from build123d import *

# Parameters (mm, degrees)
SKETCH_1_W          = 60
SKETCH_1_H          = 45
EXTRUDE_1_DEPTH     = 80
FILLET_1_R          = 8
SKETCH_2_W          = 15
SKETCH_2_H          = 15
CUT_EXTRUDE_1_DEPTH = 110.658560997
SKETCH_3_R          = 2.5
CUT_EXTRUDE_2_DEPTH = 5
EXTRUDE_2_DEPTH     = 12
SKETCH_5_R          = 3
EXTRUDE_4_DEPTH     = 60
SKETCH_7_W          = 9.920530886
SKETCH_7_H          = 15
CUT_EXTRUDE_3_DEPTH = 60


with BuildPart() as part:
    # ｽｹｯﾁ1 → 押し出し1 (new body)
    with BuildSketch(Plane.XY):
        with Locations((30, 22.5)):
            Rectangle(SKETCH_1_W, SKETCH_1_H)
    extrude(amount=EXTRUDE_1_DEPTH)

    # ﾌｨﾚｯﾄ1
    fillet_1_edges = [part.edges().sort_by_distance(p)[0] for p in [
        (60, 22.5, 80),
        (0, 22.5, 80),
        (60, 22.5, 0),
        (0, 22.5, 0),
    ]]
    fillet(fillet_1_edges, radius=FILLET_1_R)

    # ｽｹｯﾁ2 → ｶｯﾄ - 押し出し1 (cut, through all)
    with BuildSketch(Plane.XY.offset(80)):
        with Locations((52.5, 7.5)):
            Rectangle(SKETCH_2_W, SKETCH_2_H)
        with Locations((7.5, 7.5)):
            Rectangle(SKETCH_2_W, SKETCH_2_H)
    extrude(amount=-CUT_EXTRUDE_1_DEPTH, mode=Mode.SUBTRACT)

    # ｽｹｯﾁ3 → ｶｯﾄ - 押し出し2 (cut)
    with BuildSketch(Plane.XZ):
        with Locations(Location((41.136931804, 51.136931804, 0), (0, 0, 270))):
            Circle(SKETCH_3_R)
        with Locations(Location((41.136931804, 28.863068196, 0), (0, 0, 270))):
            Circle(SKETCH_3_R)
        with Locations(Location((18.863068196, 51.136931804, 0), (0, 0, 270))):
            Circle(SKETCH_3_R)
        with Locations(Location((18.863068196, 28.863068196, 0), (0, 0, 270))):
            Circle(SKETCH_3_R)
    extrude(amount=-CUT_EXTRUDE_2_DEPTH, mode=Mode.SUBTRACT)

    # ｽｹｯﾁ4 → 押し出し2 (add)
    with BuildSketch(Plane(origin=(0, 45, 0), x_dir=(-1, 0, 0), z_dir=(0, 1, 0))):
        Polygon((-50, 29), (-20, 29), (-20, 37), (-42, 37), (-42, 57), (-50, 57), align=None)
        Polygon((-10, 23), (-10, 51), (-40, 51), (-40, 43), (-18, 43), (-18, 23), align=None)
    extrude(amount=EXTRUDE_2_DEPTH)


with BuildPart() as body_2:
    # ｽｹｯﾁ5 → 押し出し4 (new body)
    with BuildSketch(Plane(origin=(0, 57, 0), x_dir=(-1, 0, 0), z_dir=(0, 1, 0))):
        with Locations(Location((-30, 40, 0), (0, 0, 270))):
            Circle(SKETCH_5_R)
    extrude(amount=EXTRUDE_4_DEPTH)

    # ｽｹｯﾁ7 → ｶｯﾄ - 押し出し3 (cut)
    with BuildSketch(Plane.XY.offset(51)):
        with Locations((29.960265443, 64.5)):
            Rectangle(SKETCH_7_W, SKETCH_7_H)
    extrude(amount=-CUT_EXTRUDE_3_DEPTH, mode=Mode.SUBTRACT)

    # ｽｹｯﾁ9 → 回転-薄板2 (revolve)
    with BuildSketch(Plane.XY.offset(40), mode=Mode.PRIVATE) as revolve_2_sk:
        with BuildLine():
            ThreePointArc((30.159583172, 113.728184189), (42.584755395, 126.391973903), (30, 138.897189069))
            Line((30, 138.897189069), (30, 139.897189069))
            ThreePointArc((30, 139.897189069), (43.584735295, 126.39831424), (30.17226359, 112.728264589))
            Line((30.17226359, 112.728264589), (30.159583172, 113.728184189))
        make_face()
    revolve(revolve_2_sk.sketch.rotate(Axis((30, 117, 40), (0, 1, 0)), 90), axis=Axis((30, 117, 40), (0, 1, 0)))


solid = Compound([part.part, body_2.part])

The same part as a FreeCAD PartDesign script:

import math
import FreeCAD as App
import Part
import Sketcher
Q = App.Units.Quantity


def edges_at(feature, points):
    """Names of the edges that pass closest to the given points."""
    edges = feature.Shape.Edges
    near = lambda p: min(range(len(edges)), key=lambda i: edges[i].distToShape(Part.Vertex(*p))[0])
    return sorted({f"Edge{near(p) + 1}" for p in points})

doc = App.newDocument("Part")
body = doc.addObject("PartDesign::Body", "Body")

# Sketch on XY plane
sketch1 = body.newObject("Sketcher::SketchObject", "Sketch")
sketch1.AttachmentSupport = (doc.getObject("XY_Plane"), [""])
sketch1.MapMode = "FlatFace"
sketch1.addGeometry([
    Part.LineSegment(App.Vector(0, 45, 0), App.Vector(0, 0, 0)),
    Part.LineSegment(App.Vector(0, 0, 0), App.Vector(60, 0, 0)),
    Part.LineSegment(App.Vector(60, 0, 0), App.Vector(60, 45, 0)),
    Part.LineSegment(App.Vector(60, 45, 0), App.Vector(0, 45, 0)),
], False)
sketch1.addConstraint([
    Sketcher.Constraint("Coincident", 0, 2, 1, 1),
    Sketcher.Constraint("Coincident", 1, 2, 2, 1),
    Sketcher.Constraint("Coincident", 2, 2, 3, 1),
    Sketcher.Constraint("Coincident", 3, 2, 0, 1),
    Sketcher.Constraint("Vertical", 0),
    Sketcher.Constraint("Horizontal", 1),
    Sketcher.Constraint("Vertical", 2),
    Sketcher.Constraint("Horizontal", 3),
    Sketcher.Constraint("Coincident", 0, 2, -1, 1),
    Sketcher.Constraint("DistanceX", 1, 1, 1, 2, Q("60 mm")),
    Sketcher.Constraint("DistanceY", 0, 2, 0, 1, Q("45 mm")),
])
pad1 = body.newObject("PartDesign::Pad", "Pad")
pad1.Profile = sketch1
pad1.Length = 80
doc.recompute()

fillet = body.newObject("PartDesign::Fillet", "Fillet")
fillet.Base = (pad1, edges_at(pad1, [
    (60, 22.5, 80),
    (0, 22.5, 80),
    (60, 22.5, 0),
    (0, 22.5, 0),
]))
fillet.Radius = 8

# Sketch on XY plane
sketch2 = body.newObject("Sketcher::SketchObject", "Sketch001")
sketch2.AttachmentSupport = (doc.getObject("XY_Plane"), [""])
sketch2.MapMode = "FlatFace"
sketch2.AttachmentOffset = App.Placement(App.Vector(0, 0, 80), App.Rotation())
sketch2.addGeometry([
    Part.LineSegment(App.Vector(45, 15, 0), App.Vector(45, 0, 0)),  # 0
    Part.LineSegment(App.Vector(45, 0, 0), App.Vector(60, 0, 0)),  # 1
    Part.LineSegment(App.Vector(60, 0, 0), App.Vector(60, 15, 0)),  # 2
    Part.LineSegment(App.Vector(60, 15, 0), App.Vector(45, 15, 0)),  # 3
    Part.LineSegment(App.Vector(0, 15, 0), App.Vector(0, 0, 0)),  # 4
    Part.LineSegment(App.Vector(0, 0, 0), App.Vector(15, 0, 0)),  # 5
    Part.LineSegment(App.Vector(15, 0, 0), App.Vector(15, 15, 0)),  # 6
    Part.LineSegment(App.Vector(15, 15, 0), App.Vector(0, 15, 0)),  # 7
], False)
sketch2.addConstraint([
    Sketcher.Constraint("Coincident", 0, 2, 1, 1),
    Sketcher.Constraint("Coincident", 1, 2, 2, 1),
    Sketcher.Constraint("Coincident", 2, 2, 3, 1),
    Sketcher.Constraint("Coincident", 3, 2, 0, 1),
    Sketcher.Constraint("Coincident", 4, 2, 5, 1),
    Sketcher.Constraint("Coincident", 5, 2, 6, 1),
    Sketcher.Constraint("Coincident", 6, 2, 7, 1),
    Sketcher.Constraint("Coincident", 7, 2, 4, 1),
    Sketcher.Constraint("Vertical", 0),
    Sketcher.Constraint("Horizontal", 1),
    Sketcher.Constraint("Vertical", 2),
    Sketcher.Constraint("Horizontal", 3),
    Sketcher.Constraint("Vertical", 4),
    Sketcher.Constraint("Horizontal", 5),
    Sketcher.Constraint("Vertical", 6),
    Sketcher.Constraint("Horizontal", 7),
    Sketcher.Constraint("Coincident", 4, 2, -1, 1),
    Sketcher.Constraint("PointOnObject", 0, 2, -1),
    Sketcher.Constraint("Horizontal", 3, 2, 6, 2),
    Sketcher.Constraint("Equal", 3, 5),
    Sketcher.Constraint("Equal", 7, 0),
    Sketcher.Constraint("DistanceX", 1, 1, 1, 2, Q("15 mm")),
    Sketcher.Constraint("DistanceX", -1, 1, 0, 2, Q("45 mm")),
])
pocket1 = body.newObject("PartDesign::Pocket", "Pocket")
pocket1.Profile = sketch2
pocket1.Type = "ThroughAll"

# Sketch on XZ plane
sketch3 = body.newObject("Sketcher::SketchObject", "Sketch002")
sketch3.AttachmentSupport = (doc.getObject("XZ_Plane"), [""])
sketch3.MapMode = "FlatFace"
sketch3.addGeometry([
    Part.Circle(App.Vector(41.1, 51.1, 0), App.Vector(0, 0, 1), 2.5),
    Part.Circle(App.Vector(41.1, 28.9, 0), App.Vector(0, 0, 1), 2.5),
    Part.Circle(App.Vector(18.9, 51.1, 0), App.Vector(0, 0, 1), 2.5),
    Part.Circle(App.Vector(18.9, 28.9, 0), App.Vector(0, 0, 1), 2.5),
], False)
sketch3.addConstraint([
    Sketcher.Constraint("Equal", 0, 1),
    Sketcher.Constraint("Equal", 1, 2),
    Sketcher.Constraint("Equal", 2, 3),
    Sketcher.Constraint("Horizontal", 0, 3, 2, 3),
    Sketcher.Constraint("Horizontal", 1, 3, 3, 3),
    Sketcher.Constraint("Vertical", 0, 3, 1, 3),
    Sketcher.Constraint("Vertical", 2, 3, 3, 3),
    Sketcher.Constraint("Diameter", 0, Q("5 mm")),
    Sketcher.Constraint("DistanceX", -1, 1, 0, 3, Q("41.136932 mm")),
    Sketcher.Constraint("DistanceY", -1, 1, 0, 3, Q("51.136932 mm")),
    Sketcher.Constraint("DistanceY", -1, 1, 1, 3, Q("28.863068 mm")),
    Sketcher.Constraint("DistanceX", -1, 1, 2, 3, Q("18.863068 mm")),
])
pocket2 = body.newObject("PartDesign::Pocket", "Pocket001")
pocket2.Profile = sketch3
pocket2.Length = 5

# Sketch on XZ plane
sketch4 = body.newObject("Sketcher::SketchObject", "Sketch003")
sketch4.AttachmentSupport = (doc.getObject("XZ_Plane"), [""])
sketch4.MapMode = "FlatFace"
sketch4.AttachmentOffset = App.Placement(App.Vector(0, 0, -45), App.Rotation())
sketch4.addGeometry([
    Part.LineSegment(App.Vector(50, 29, 0), App.Vector(20, 29, 0)),  # 0
    Part.LineSegment(App.Vector(20, 29, 0), App.Vector(20, 37, 0)),  # 1
    Part.LineSegment(App.Vector(20, 37, 0), App.Vector(42, 37, 0)),  # 2
    Part.LineSegment(App.Vector(42, 37, 0), App.Vector(42, 57, 0)),  # 3
    Part.LineSegment(App.Vector(42, 57, 0), App.Vector(50, 57, 0)),  # 4
    Part.LineSegment(App.Vector(50, 57, 0), App.Vector(50, 29, 0)),  # 5
    Part.LineSegment(App.Vector(10, 23, 0), App.Vector(10, 51, 0)),  # 6
    Part.LineSegment(App.Vector(10, 51, 0), App.Vector(40, 51, 0)),  # 7
    Part.LineSegment(App.Vector(40, 51, 0), App.Vector(40, 43, 0)),  # 8
    Part.LineSegment(App.Vector(40, 43, 0), App.Vector(18, 43, 0)),  # 9
    Part.LineSegment(App.Vector(18, 43, 0), App.Vector(18, 23, 0)),  # 10
    Part.LineSegment(App.Vector(18, 23, 0), App.Vector(10, 23, 0)),  # 11
], False)
sketch4.addConstraint([
    Sketcher.Constraint("Coincident", 0, 2, 1, 1),
    Sketcher.Constraint("Coincident", 1, 2, 2, 1),
    Sketcher.Constraint("Coincident", 2, 2, 3, 1),
    Sketcher.Constraint("Coincident", 3, 2, 4, 1),
    Sketcher.Constraint("Coincident", 4, 2, 5, 1),
    Sketcher.Constraint("Coincident", 5, 2, 0, 1),
    Sketcher.Constraint("Coincident", 6, 2, 7, 1),
    Sketcher.Constraint("Coincident", 7, 2, 8, 1),
    Sketcher.Constraint("Coincident", 8, 2, 9, 1),
    Sketcher.Constraint("Coincident", 9, 2, 10, 1),
    Sketcher.Constraint("Coincident", 10, 2, 11, 1),
    Sketcher.Constraint("Coincident", 11, 2, 6, 1),
    Sketcher.Constraint("Horizontal", 0),
    Sketcher.Constraint("Vertical", 1),
    Sketcher.Constraint("Horizontal", 2),
    Sketcher.Constraint("Vertical", 3),
    Sketcher.Constraint("Horizontal", 4),
    Sketcher.Constraint("Vertical", 5),
    Sketcher.Constraint("Vertical", 6),
    Sketcher.Constraint("Horizontal", 7),
    Sketcher.Constraint("Vertical", 8),
    Sketcher.Constraint("Horizontal", 9),
    Sketcher.Constraint("Vertical", 10),
    Sketcher.Constraint("Horizontal", 11),
    Sketcher.Constraint("Equal", 0, 7),
    Sketcher.Constraint("Equal", 2, 9),
    Sketcher.Constraint("Equal", 11, 1),
    Sketcher.Constraint("Equal", 5, 6),
    Sketcher.Constraint("Equal", 1, 8),
    Sketcher.Constraint("DistanceX", 0, 2, 0, 1, Q("30 mm")),
    Sketcher.Constraint("DistanceX", 2, 1, 2, 2, Q("22 mm")),
    Sketcher.Constraint("DistanceY", 3, 1, 3, 2, Q("20 mm")),
    Sketcher.Constraint("DistanceX", -1, 1, 0, 2, Q("20 mm")),
    Sketcher.Constraint("DistanceY", -1, 1, 0, 2, Q("29 mm")),
    Sketcher.Constraint("DistanceX", -1, 1, 6, 2, Q("10 mm")),
    Sketcher.Constraint("DistanceY", -1, 1, 6, 2, Q("51 mm")),
])
pad2 = body.newObject("PartDesign::Pad", "Pad001")
pad2.Profile = sketch4
pad2.Length = 12
pad2.Reversed = True
body2 = doc.addObject("PartDesign::Body", "Body001")

# Sketch on XZ plane
sketch5 = body2.newObject("Sketcher::SketchObject", "Sketch004")
sketch5.AttachmentSupport = (doc.getObject("XZ_Plane001"), [""])
sketch5.MapMode = "FlatFace"
sketch5.AttachmentOffset = App.Placement(App.Vector(0, 0, -57), App.Rotation())
sketch5.addGeometry(Part.Circle(App.Vector(30, 40, 0), App.Vector(0, 0, 1), 3), False)
sketch5.addConstraint([
    Sketcher.Constraint("Diameter", 0, Q("6 mm")),
    Sketcher.Constraint("DistanceX", -1, 1, 0, 3, Q("30 mm")),
    Sketcher.Constraint("DistanceY", -1, 1, 0, 3, Q("40 mm")),
])
pad3 = body2.newObject("PartDesign::Pad", "Pad002")
pad3.Profile = sketch5
pad3.Length = 60
pad3.Reversed = True

# Sketch on XY plane
sketch6 = body2.newObject("Sketcher::SketchObject", "Sketch005")
sketch6.AttachmentSupport = (doc.getObject("XY_Plane001"), [""])
sketch6.MapMode = "FlatFace"
sketch6.AttachmentOffset = App.Placement(App.Vector(0, 0, 51), App.Rotation())
sketch6.addGeometry([
    Part.LineSegment(App.Vector(25, 72, 0), App.Vector(25, 57, 0)),
    Part.LineSegment(App.Vector(25, 57, 0), App.Vector(35, 57, 0)),
    Part.LineSegment(App.Vector(35, 57, 0), App.Vector(35, 72, 0)),
    Part.LineSegment(App.Vector(35, 72, 0), App.Vector(25, 72, 0)),
], False)
sketch6.addConstraint([
    Sketcher.Constraint("Coincident", 0, 2, 1, 1),
    Sketcher.Constraint("Coincident", 1, 2, 2, 1),
    Sketcher.Constraint("Coincident", 2, 2, 3, 1),
    Sketcher.Constraint("Coincident", 3, 2, 0, 1),
    Sketcher.Constraint("Vertical", 0),
    Sketcher.Constraint("Horizontal", 1),
    Sketcher.Constraint("Vertical", 2),
    Sketcher.Constraint("Horizontal", 3),
    Sketcher.Constraint("DistanceY", 0, 2, 0, 1, Q("15 mm")),
    Sketcher.Constraint("DistanceX", -1, 1, 0, 2, Q("25 mm")),
    Sketcher.Constraint("DistanceY", -1, 1, 0, 2, Q("57 mm")),
    Sketcher.Constraint("DistanceX", 1, 1, 1, 2, Q("9.920531 mm")),
])
pocket3 = body2.newObject("PartDesign::Pocket", "Pocket002")
pocket3.Profile = sketch6
pocket3.Length = 60

# Sketch on XY plane
sketch7 = body2.newObject("Sketcher::SketchObject", "Sketch006")
sketch7.AttachmentSupport = (doc.getObject("XY_Plane001"), [""])
sketch7.MapMode = "FlatFace"
sketch7.AttachmentOffset = App.Placement(App.Vector(0, 0, 40), App.Rotation())
sketch7.addGeometry([
    Part.ArcOfCircle(Part.Circle(App.Vector(30, 126.3, 0), App.Vector(0, 0, 1), 12.6), math.radians(-89), math.radians(90)),
    Part.LineSegment(App.Vector(30.2, 113.7, 0), App.Vector(30.2, 112.7, 0)),
    Part.ArcOfCircle(Part.Circle(App.Vector(30, 126.3, 0), App.Vector(0, 0, 1), 13.6), math.radians(-89), math.radians(90)),
    Part.LineSegment(App.Vector(30, 139.9, 0), App.Vector(30, 138.9, 0)),
], False)
sketch7.addGeometry(Part.LineSegment(App.Vector(30, 112.7, 0), App.Vector(30, 139.9, 0)), True)  # axis
sketch7.addConstraint([
    Sketcher.Constraint("Coincident", 0, 1, 1, 1),
    Sketcher.Constraint("Coincident", 1, 2, 2, 1),
    Sketcher.Constraint("Coincident", 2, 2, 3, 1),
    Sketcher.Constraint("Coincident", 3, 2, 0, 2),
    Sketcher.Constraint("Vertical", 3),
    Sketcher.Constraint("Vertical", 4),
    Sketcher.Constraint("Coincident", 2, 3, 0, 3),
    Sketcher.Constraint("Coincident", 4, 2, 2, 2),
    Sketcher.Constraint("Horizontal", 1, 2, 4, 1),
    Sketcher.Constraint("Vertical", 0, 3, 2, 2),
    Sketcher.Constraint("DistanceY", 3, 2, 3, 1, Q("1 mm")),
    Sketcher.Constraint("DistanceX", -1, 1, 0, 3, Q("30 mm")),
    Sketcher.Constraint("Radius", 0, Q("12.585008 mm")),
    Sketcher.Constraint("DistanceY", 4, 1, 4, 2, Q("27.168924 mm")),
    Sketcher.Constraint("DistanceY", -1, 1, 0, 3, Q("126.312181 mm")),
    Sketcher.Constraint("DistanceX", 0, 1, 1, 2, Q("0.01268 mm")),
])
revolution = body2.newObject("PartDesign::Revolution", "Revolution")
revolution.Profile = sketch7
revolution.ReferenceAxis = (sketch7, ["Axis0"])
revolution.Angle = 360

doc.recompute()
